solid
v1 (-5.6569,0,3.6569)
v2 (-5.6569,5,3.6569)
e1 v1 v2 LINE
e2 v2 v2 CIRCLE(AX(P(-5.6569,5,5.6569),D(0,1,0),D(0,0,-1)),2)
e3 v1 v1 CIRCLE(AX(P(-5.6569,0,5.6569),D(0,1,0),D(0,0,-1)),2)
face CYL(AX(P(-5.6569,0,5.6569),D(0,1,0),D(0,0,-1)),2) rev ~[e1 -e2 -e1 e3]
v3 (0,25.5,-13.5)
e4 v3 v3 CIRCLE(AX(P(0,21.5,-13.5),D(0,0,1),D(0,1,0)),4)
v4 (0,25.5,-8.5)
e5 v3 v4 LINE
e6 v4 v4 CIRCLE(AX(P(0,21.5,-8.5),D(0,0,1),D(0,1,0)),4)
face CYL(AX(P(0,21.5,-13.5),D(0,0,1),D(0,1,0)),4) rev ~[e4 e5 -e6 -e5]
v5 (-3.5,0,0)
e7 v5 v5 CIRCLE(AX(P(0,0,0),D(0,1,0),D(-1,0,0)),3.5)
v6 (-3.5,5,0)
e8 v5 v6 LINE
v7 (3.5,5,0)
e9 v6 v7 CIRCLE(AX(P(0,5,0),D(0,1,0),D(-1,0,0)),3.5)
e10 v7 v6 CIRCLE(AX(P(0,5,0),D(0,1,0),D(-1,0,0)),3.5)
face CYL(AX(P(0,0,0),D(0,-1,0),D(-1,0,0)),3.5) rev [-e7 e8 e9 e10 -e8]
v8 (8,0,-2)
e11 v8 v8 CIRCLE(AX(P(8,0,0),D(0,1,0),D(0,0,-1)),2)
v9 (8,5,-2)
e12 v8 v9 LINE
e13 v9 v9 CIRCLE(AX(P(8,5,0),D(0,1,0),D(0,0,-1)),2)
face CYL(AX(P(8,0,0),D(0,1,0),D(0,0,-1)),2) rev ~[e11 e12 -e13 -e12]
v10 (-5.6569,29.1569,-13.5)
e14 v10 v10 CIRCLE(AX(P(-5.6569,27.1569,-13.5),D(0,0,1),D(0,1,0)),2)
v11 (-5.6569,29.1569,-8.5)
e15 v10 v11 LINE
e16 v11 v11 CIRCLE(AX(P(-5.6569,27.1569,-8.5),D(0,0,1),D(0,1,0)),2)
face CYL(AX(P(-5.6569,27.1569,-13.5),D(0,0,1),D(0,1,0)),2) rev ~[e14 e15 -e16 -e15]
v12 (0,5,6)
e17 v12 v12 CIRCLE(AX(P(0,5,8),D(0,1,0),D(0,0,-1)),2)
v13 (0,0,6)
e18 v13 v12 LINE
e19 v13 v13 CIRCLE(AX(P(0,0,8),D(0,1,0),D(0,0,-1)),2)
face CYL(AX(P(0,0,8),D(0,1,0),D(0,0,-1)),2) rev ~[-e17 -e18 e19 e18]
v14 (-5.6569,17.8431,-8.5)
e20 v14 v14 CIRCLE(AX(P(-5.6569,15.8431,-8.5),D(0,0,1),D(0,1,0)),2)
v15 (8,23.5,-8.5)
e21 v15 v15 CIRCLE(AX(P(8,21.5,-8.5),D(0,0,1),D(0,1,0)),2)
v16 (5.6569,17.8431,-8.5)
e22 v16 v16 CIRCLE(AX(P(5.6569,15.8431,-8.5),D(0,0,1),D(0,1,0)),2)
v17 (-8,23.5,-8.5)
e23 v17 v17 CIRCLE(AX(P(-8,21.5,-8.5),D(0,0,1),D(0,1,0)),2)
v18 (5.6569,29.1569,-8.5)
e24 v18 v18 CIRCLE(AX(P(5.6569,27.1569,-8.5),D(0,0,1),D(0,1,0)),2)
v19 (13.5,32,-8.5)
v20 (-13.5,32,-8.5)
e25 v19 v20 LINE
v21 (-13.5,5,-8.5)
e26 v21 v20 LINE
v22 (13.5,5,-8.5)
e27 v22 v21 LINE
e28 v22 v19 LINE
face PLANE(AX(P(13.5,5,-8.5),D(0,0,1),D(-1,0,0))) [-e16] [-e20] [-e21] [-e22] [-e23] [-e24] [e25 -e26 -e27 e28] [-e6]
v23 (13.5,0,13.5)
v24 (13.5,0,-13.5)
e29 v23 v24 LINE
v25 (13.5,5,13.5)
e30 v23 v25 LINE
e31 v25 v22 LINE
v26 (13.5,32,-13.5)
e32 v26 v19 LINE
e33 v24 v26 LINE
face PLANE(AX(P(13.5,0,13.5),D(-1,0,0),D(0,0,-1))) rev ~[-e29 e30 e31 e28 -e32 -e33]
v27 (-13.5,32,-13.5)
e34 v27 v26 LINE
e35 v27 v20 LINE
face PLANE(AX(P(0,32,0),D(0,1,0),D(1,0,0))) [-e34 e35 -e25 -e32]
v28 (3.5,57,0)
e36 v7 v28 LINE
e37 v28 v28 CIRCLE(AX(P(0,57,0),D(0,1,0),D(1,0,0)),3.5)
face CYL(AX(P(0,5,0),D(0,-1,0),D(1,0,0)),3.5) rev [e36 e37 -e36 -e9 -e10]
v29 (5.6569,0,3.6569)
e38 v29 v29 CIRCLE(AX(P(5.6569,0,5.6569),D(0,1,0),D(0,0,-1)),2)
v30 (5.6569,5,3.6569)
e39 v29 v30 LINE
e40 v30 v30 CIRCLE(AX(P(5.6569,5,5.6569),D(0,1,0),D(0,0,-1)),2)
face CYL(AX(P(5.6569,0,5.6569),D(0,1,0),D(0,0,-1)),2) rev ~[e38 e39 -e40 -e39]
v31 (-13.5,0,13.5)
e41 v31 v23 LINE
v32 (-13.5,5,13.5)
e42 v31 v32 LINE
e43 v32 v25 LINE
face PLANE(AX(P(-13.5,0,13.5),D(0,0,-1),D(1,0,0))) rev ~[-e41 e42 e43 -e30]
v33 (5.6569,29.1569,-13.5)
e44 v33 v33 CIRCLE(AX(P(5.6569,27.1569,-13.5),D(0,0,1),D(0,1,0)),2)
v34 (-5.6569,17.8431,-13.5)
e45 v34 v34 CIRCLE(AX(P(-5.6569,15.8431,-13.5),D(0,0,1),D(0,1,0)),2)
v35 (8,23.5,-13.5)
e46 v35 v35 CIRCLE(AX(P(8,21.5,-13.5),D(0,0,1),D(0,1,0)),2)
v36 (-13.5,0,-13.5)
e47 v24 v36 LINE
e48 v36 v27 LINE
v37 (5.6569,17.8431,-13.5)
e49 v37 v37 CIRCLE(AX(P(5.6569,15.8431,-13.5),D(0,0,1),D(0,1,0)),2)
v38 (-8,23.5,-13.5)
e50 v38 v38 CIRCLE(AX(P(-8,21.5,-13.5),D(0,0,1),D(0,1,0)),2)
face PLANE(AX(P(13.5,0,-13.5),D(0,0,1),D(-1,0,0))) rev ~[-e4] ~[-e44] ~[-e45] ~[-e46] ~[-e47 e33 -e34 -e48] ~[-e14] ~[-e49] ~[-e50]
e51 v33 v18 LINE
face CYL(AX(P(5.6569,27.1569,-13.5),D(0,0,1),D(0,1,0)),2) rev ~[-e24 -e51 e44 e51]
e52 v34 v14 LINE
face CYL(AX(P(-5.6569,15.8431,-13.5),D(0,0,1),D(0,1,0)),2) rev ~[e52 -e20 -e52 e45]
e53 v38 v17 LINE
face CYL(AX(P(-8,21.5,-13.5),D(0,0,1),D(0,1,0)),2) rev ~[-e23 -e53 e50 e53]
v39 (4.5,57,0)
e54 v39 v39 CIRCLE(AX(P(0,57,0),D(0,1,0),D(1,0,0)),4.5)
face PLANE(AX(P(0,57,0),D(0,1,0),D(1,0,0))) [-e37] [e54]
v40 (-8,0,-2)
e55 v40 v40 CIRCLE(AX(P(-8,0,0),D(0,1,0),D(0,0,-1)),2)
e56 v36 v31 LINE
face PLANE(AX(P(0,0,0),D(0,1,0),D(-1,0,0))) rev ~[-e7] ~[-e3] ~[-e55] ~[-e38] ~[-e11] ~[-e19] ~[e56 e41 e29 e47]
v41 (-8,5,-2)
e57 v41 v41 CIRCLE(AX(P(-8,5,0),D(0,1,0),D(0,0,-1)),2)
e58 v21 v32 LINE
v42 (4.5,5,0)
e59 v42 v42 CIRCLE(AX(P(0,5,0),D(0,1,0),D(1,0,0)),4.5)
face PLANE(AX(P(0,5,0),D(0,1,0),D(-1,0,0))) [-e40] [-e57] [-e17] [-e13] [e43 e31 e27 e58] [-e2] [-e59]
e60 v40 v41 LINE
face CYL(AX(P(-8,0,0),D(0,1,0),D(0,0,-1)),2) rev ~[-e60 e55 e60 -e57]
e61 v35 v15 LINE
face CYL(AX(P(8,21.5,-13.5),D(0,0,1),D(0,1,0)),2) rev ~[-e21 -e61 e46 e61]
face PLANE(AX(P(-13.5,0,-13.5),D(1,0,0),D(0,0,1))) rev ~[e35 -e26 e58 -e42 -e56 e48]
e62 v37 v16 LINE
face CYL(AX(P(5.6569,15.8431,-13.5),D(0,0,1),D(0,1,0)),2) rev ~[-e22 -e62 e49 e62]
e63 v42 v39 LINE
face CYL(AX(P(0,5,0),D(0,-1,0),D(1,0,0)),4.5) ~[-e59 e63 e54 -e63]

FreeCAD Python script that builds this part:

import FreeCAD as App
import Part
import Sketcher
from FreeCAD import Vector


def add_polygon(sketch, points):
    """Adds a closed chain of lines whose ends are joined by coincident constraints."""
    first, n = sketch.GeometryCount, len(points)
    for a, b in zip(points, points[1:] + points[:1]):
        sketch.addGeometry(Part.LineSegment(App.Vector(*a, 0), App.Vector(*b, 0)), False)
    for i in range(n):
        sketch.addConstraint(Sketcher.Constraint("Coincident", first + i, 2, first + (i + 1) % n, 1))

doc = App.newDocument("Part")
body = doc.addObject("PartDesign::Body", "Body")

sketch1 = body.newObject("Sketcher::SketchObject", "Sketch")
sketch1.AttachmentSupport = (doc.getObject("XZ_Plane"), [""])
sketch1.MapMode = "FlatFace"
add_polygon(sketch1, [(13.5, 13.5), (13.5, -13.5), (-13.5, -13.5), (-13.5, 13.5)])
sketch1.addGeometry(Part.Circle(Vector(0, 0, 0), Vector(0, 0, 1), 3.5), False)
sketch1.addConstraint(Sketcher.Constraint("Vertical", 0))
sketch1.addConstraint(Sketcher.Constraint("Horizontal", 1))
sketch1.addConstraint(Sketcher.Constraint("Vertical", 2))
sketch1.addConstraint(Sketcher.Constraint("Horizontal", 3))
sketch1.addConstraint(Sketcher.Constraint("Coincident", 4, 3, -1, 1))
sketch1.addConstraint(Sketcher.Constraint("Symmetric", 0, 2, 2, 2, -1, 1))
sketch1.addConstraint(Sketcher.Constraint("Equal", 3, 0))
sketch1.addConstraint(Sketcher.Constraint("Diameter", 4, 7.0))
sketch1.addConstraint(Sketcher.Constraint("DistanceX", 1, 2, 1, 1, 27.0))
pad1 = body.newObject("PartDesign::Pad", "Pad")
pad1.Profile = sketch1
pad1.Length = 5
pad1.Reversed = True

sketch2 = body.newObject("Sketcher::SketchObject", "Sketch001")
sketch2.AttachmentSupport = (doc.getObject("XZ_Plane"), [""])
sketch2.MapMode = "FlatFace"
sketch2.AttachmentOffset = App.Placement(Vector(0, 0, -5), App.Rotation())
add_polygon(sketch2, [(14, -14), (-14, -14), (-14, -8), (14, -8)])
sketch2.addConstraint(Sketcher.Constraint("Horizontal", 0))
sketch2.addConstraint(Sketcher.Constraint("Vertical", 1))
sketch2.addConstraint(Sketcher.Constraint("Horizontal", 2))
sketch2.addConstraint(Sketcher.Constraint("Vertical", 3))
sketch2.addConstraint(Sketcher.Constraint("DistanceX", 0, 2, 0, 1, 27.0))
sketch2.addConstraint(Sketcher.Constraint("DistanceY", 1, 1, 1, 2, 5.0))
sketch2.addConstraint(Sketcher.Constraint("DistanceX", 0, 2, -1, 1, 13.5))
sketch2.addConstraint(Sketcher.Constraint("DistanceY", 0, 2, -1, 1, 13.5))
pad2 = body.newObject("PartDesign::Pad", "Pad001")
pad2.Profile = sketch2
pad2.Length = 27
pad2.Reversed = True

sketch3 = body.newObject("Sketcher::SketchObject", "Sketch002")
sketch3.AttachmentSupport = (doc.getObject("XY_Plane"), [""])
sketch3.MapMode = "FlatFace"
sketch3.AttachmentOffset = App.Placement(Vector(0, 0, -13.5), App.Rotation())
sketch3.addGeometry(Part.Circle(Vector(0, 21.5, 0), Vector(0, 0, 1), 4), False)
sketch3.addConstraint(Sketcher.Constraint("PointOnObject", 0, 3, -2))
sketch3.addConstraint(Sketcher.Constraint("Diameter", 0, 8.0))
sketch3.addConstraint(Sketcher.Constraint("DistanceY", -1, 1, 0, 3, 21.5))
doc.recompute()
hole = body.newObject("PartDesign::Hole", "Hole")
hole.Profile = sketch3
hole.ThreadType = "None"
hole.Diameter = 8
hole.DepthType = "Dimension"
hole.Depth = 5
hole.DrillPoint = "Angled"
hole.DrillPointAngle = 118
hole.Reversed = True

sketch4 = body.newObject("Sketcher::SketchObject", "Sketch003")
sketch4.AttachmentSupport = (doc.getObject("XZ_Plane"), [""])
sketch4.MapMode = "FlatFace"
sketch4.addGeometry(Part.Circle(Vector(8, 0, 0), Vector(0, 0, 1), 2), False)
sketch4.addGeometry(Part.Circle(Vector(5.7, 5.7, 0), Vector(0, 0, 1), 2), False)
sketch4.addGeometry(Part.Circle(Vector(0, 8, 0), Vector(0, 0, 1), 2), False)
sketch4.addGeometry(Part.Circle(Vector(-5.7, 5.7, 0), Vector(0, 0, 1), 2), False)
sketch4.addGeometry(Part.Circle(Vector(-8, 0, 0), Vector(0, 0, 1), 2), False)
sketch4.addConstraint(Sketcher.Constraint("Equal", 0, 1))
sketch4.addConstraint(Sketcher.Constraint("Equal", 1, 2))
sketch4.addConstraint(Sketcher.Constraint("Equal", 2, 3))
sketch4.addConstraint(Sketcher.Constraint("Equal", 3, 4))
sketch4.addConstraint(Sketcher.Constraint("Symmetric", 0, 3, 4, 3, -1, 1))
sketch4.addConstraint(Sketcher.Constraint("Symmetric", 1, 3, 3, 3, -2))
sketch4.addConstraint(Sketcher.Constraint("PointOnObject", 0, 3, -1))
sketch4.addConstraint(Sketcher.Constraint("PointOnObject", 2, 3, -2))
sketch4.addConstraint(Sketcher.Constraint("Diameter", 0, 4.0))
sketch4.addConstraint(Sketcher.Constraint("DistanceX", -1, 1, 0, 3, 8.0))
sketch4.addConstraint(Sketcher.Constraint("DistanceY", -1, 1, 2, 3, 8.0))
sketch4.addConstraint(Sketcher.Constraint("DistanceX", -1, 1, 1, 3, 5.657))
sketch4.addConstraint(Sketcher.Constraint("DistanceY", -1, 1, 1, 3, 5.657))
doc.recompute()
hole2 = body.newObject("PartDesign::Hole", "Hole001")
hole2.Profile = sketch4
hole2.ThreadType = "None"
hole2.Diameter = 4
hole2.DepthType = "ThroughAll"

sketch5 = body.newObject("Sketcher::SketchObject", "Sketch004")
sketch5.AttachmentSupport = (doc.getObject("XZ_Plane"), [""])
sketch5.MapMode = "FlatFace"
sketch5.AttachmentOffset = App.Placement(Vector(0, 0, -5), App.Rotation())
sketch5.addGeometry(Part.Circle(Vector(0, 0, 0), Vector(0, 0, 1), 4.5), False)
sketch5.addGeometry(Part.Circle(Vector(0, 0, 0), Vector(0, 0, 1), 3.5), False)
sketch5.addConstraint(Sketcher.Constraint("Coincident", 0, 3, -1, 1))
sketch5.addConstraint(Sketcher.Constraint("Coincident", 1, 3, -1, 1))
sketch5.addConstraint(Sketcher.Constraint("Diameter", 0, 9.0))
sketch5.addConstraint(Sketcher.Constraint("Diameter", 1, 7.0))
pad3 = body.newObject("PartDesign::Pad", "Pad002")
pad3.Profile = sketch5
pad3.Length = 52
pad3.Reversed = True

sketch6 = body.newObject("Sketcher::SketchObject", "Sketch005")
sketch6.AttachmentSupport = (doc.getObject("XY_Plane"), [""])
sketch6.MapMode = "FlatFace"
sketch6.AttachmentOffset = App.Placement(Vector(0, 0, -13.5), App.Rotation())
sketch6.addGeometry(Part.Circle(Vector(5.7, 15.8, 0), Vector(0, 0, 1), 2), False)
sketch6.addGeometry(Part.Circle(Vector(8, 21.5, 0), Vector(0, 0, 1), 2), False)
sketch6.addGeometry(Part.Circle(Vector(5.7, 27.2, 0), Vector(0, 0, 1), 2), False)
sketch6.addGeometry(Part.Circle(Vector(-5.7, 27.2, 0), Vector(0, 0, 1), 2), False)
sketch6.addGeometry(Part.Circle(Vector(-8, 21.5, 0), Vector(0, 0, 1), 2), False)
sketch6.addGeometry(Part.Circle(Vector(-5.7, 15.8, 0), Vector(0, 0, 1), 2), False)
sketch6.addConstraint(Sketcher.Constraint("Equal", 0, 1))
sketch6.addConstraint(Sketcher.Constraint("Equal", 1, 2))
sketch6.addConstraint(Sketcher.Constraint("Equal", 2, 3))
sketch6.addConstraint(Sketcher.Constraint("Equal", 3, 4))
sketch6.addConstraint(Sketcher.Constraint("Equal", 4, 5))
sketch6.addConstraint(Sketcher.Constraint("Symmetric", 2, 3, 3, 3, -2))
sketch6.addConstraint(Sketcher.Constraint("Symmetric", 1, 3, 4, 3, -2))
sketch6.addConstraint(Sketcher.Constraint("Symmetric", 0, 3, 5, 3, -2))
sketch6.addConstraint(Sketcher.Constraint("Vertical", 0, 3, 2, 3))
sketch6.addConstraint(Sketcher.Constraint("Diameter", 0, 4.0))
sketch6.addConstraint(Sketcher.Constraint("DistanceX", -1, 1, 1, 3, 8.0))
sketch6.addConstraint(Sketcher.Constraint("DistanceY", -1, 1, 1, 3, 21.5))
sketch6.addConstraint(Sketcher.Constraint("DistanceX", -1, 1, 0, 3, 5.657))
sketch6.addConstraint(Sketcher.Constraint("DistanceY", -1, 1, 0, 3, 15.843))
sketch6.addConstraint(Sketcher.Constraint("DistanceY", -1, 1, 2, 3, 27.157))
doc.recompute()
hole3 = body.newObject("PartDesign::Hole", "Hole002")
hole3.Profile = sketch6
hole3.ThreadType = "None"
hole3.Diameter = 4
hole3.DepthType = "Dimension"
hole3.Depth = 5
hole3.DrillPoint = "Angled"
hole3.DrillPointAngle = 118
hole3.Reversed = True

doc.recompute()
